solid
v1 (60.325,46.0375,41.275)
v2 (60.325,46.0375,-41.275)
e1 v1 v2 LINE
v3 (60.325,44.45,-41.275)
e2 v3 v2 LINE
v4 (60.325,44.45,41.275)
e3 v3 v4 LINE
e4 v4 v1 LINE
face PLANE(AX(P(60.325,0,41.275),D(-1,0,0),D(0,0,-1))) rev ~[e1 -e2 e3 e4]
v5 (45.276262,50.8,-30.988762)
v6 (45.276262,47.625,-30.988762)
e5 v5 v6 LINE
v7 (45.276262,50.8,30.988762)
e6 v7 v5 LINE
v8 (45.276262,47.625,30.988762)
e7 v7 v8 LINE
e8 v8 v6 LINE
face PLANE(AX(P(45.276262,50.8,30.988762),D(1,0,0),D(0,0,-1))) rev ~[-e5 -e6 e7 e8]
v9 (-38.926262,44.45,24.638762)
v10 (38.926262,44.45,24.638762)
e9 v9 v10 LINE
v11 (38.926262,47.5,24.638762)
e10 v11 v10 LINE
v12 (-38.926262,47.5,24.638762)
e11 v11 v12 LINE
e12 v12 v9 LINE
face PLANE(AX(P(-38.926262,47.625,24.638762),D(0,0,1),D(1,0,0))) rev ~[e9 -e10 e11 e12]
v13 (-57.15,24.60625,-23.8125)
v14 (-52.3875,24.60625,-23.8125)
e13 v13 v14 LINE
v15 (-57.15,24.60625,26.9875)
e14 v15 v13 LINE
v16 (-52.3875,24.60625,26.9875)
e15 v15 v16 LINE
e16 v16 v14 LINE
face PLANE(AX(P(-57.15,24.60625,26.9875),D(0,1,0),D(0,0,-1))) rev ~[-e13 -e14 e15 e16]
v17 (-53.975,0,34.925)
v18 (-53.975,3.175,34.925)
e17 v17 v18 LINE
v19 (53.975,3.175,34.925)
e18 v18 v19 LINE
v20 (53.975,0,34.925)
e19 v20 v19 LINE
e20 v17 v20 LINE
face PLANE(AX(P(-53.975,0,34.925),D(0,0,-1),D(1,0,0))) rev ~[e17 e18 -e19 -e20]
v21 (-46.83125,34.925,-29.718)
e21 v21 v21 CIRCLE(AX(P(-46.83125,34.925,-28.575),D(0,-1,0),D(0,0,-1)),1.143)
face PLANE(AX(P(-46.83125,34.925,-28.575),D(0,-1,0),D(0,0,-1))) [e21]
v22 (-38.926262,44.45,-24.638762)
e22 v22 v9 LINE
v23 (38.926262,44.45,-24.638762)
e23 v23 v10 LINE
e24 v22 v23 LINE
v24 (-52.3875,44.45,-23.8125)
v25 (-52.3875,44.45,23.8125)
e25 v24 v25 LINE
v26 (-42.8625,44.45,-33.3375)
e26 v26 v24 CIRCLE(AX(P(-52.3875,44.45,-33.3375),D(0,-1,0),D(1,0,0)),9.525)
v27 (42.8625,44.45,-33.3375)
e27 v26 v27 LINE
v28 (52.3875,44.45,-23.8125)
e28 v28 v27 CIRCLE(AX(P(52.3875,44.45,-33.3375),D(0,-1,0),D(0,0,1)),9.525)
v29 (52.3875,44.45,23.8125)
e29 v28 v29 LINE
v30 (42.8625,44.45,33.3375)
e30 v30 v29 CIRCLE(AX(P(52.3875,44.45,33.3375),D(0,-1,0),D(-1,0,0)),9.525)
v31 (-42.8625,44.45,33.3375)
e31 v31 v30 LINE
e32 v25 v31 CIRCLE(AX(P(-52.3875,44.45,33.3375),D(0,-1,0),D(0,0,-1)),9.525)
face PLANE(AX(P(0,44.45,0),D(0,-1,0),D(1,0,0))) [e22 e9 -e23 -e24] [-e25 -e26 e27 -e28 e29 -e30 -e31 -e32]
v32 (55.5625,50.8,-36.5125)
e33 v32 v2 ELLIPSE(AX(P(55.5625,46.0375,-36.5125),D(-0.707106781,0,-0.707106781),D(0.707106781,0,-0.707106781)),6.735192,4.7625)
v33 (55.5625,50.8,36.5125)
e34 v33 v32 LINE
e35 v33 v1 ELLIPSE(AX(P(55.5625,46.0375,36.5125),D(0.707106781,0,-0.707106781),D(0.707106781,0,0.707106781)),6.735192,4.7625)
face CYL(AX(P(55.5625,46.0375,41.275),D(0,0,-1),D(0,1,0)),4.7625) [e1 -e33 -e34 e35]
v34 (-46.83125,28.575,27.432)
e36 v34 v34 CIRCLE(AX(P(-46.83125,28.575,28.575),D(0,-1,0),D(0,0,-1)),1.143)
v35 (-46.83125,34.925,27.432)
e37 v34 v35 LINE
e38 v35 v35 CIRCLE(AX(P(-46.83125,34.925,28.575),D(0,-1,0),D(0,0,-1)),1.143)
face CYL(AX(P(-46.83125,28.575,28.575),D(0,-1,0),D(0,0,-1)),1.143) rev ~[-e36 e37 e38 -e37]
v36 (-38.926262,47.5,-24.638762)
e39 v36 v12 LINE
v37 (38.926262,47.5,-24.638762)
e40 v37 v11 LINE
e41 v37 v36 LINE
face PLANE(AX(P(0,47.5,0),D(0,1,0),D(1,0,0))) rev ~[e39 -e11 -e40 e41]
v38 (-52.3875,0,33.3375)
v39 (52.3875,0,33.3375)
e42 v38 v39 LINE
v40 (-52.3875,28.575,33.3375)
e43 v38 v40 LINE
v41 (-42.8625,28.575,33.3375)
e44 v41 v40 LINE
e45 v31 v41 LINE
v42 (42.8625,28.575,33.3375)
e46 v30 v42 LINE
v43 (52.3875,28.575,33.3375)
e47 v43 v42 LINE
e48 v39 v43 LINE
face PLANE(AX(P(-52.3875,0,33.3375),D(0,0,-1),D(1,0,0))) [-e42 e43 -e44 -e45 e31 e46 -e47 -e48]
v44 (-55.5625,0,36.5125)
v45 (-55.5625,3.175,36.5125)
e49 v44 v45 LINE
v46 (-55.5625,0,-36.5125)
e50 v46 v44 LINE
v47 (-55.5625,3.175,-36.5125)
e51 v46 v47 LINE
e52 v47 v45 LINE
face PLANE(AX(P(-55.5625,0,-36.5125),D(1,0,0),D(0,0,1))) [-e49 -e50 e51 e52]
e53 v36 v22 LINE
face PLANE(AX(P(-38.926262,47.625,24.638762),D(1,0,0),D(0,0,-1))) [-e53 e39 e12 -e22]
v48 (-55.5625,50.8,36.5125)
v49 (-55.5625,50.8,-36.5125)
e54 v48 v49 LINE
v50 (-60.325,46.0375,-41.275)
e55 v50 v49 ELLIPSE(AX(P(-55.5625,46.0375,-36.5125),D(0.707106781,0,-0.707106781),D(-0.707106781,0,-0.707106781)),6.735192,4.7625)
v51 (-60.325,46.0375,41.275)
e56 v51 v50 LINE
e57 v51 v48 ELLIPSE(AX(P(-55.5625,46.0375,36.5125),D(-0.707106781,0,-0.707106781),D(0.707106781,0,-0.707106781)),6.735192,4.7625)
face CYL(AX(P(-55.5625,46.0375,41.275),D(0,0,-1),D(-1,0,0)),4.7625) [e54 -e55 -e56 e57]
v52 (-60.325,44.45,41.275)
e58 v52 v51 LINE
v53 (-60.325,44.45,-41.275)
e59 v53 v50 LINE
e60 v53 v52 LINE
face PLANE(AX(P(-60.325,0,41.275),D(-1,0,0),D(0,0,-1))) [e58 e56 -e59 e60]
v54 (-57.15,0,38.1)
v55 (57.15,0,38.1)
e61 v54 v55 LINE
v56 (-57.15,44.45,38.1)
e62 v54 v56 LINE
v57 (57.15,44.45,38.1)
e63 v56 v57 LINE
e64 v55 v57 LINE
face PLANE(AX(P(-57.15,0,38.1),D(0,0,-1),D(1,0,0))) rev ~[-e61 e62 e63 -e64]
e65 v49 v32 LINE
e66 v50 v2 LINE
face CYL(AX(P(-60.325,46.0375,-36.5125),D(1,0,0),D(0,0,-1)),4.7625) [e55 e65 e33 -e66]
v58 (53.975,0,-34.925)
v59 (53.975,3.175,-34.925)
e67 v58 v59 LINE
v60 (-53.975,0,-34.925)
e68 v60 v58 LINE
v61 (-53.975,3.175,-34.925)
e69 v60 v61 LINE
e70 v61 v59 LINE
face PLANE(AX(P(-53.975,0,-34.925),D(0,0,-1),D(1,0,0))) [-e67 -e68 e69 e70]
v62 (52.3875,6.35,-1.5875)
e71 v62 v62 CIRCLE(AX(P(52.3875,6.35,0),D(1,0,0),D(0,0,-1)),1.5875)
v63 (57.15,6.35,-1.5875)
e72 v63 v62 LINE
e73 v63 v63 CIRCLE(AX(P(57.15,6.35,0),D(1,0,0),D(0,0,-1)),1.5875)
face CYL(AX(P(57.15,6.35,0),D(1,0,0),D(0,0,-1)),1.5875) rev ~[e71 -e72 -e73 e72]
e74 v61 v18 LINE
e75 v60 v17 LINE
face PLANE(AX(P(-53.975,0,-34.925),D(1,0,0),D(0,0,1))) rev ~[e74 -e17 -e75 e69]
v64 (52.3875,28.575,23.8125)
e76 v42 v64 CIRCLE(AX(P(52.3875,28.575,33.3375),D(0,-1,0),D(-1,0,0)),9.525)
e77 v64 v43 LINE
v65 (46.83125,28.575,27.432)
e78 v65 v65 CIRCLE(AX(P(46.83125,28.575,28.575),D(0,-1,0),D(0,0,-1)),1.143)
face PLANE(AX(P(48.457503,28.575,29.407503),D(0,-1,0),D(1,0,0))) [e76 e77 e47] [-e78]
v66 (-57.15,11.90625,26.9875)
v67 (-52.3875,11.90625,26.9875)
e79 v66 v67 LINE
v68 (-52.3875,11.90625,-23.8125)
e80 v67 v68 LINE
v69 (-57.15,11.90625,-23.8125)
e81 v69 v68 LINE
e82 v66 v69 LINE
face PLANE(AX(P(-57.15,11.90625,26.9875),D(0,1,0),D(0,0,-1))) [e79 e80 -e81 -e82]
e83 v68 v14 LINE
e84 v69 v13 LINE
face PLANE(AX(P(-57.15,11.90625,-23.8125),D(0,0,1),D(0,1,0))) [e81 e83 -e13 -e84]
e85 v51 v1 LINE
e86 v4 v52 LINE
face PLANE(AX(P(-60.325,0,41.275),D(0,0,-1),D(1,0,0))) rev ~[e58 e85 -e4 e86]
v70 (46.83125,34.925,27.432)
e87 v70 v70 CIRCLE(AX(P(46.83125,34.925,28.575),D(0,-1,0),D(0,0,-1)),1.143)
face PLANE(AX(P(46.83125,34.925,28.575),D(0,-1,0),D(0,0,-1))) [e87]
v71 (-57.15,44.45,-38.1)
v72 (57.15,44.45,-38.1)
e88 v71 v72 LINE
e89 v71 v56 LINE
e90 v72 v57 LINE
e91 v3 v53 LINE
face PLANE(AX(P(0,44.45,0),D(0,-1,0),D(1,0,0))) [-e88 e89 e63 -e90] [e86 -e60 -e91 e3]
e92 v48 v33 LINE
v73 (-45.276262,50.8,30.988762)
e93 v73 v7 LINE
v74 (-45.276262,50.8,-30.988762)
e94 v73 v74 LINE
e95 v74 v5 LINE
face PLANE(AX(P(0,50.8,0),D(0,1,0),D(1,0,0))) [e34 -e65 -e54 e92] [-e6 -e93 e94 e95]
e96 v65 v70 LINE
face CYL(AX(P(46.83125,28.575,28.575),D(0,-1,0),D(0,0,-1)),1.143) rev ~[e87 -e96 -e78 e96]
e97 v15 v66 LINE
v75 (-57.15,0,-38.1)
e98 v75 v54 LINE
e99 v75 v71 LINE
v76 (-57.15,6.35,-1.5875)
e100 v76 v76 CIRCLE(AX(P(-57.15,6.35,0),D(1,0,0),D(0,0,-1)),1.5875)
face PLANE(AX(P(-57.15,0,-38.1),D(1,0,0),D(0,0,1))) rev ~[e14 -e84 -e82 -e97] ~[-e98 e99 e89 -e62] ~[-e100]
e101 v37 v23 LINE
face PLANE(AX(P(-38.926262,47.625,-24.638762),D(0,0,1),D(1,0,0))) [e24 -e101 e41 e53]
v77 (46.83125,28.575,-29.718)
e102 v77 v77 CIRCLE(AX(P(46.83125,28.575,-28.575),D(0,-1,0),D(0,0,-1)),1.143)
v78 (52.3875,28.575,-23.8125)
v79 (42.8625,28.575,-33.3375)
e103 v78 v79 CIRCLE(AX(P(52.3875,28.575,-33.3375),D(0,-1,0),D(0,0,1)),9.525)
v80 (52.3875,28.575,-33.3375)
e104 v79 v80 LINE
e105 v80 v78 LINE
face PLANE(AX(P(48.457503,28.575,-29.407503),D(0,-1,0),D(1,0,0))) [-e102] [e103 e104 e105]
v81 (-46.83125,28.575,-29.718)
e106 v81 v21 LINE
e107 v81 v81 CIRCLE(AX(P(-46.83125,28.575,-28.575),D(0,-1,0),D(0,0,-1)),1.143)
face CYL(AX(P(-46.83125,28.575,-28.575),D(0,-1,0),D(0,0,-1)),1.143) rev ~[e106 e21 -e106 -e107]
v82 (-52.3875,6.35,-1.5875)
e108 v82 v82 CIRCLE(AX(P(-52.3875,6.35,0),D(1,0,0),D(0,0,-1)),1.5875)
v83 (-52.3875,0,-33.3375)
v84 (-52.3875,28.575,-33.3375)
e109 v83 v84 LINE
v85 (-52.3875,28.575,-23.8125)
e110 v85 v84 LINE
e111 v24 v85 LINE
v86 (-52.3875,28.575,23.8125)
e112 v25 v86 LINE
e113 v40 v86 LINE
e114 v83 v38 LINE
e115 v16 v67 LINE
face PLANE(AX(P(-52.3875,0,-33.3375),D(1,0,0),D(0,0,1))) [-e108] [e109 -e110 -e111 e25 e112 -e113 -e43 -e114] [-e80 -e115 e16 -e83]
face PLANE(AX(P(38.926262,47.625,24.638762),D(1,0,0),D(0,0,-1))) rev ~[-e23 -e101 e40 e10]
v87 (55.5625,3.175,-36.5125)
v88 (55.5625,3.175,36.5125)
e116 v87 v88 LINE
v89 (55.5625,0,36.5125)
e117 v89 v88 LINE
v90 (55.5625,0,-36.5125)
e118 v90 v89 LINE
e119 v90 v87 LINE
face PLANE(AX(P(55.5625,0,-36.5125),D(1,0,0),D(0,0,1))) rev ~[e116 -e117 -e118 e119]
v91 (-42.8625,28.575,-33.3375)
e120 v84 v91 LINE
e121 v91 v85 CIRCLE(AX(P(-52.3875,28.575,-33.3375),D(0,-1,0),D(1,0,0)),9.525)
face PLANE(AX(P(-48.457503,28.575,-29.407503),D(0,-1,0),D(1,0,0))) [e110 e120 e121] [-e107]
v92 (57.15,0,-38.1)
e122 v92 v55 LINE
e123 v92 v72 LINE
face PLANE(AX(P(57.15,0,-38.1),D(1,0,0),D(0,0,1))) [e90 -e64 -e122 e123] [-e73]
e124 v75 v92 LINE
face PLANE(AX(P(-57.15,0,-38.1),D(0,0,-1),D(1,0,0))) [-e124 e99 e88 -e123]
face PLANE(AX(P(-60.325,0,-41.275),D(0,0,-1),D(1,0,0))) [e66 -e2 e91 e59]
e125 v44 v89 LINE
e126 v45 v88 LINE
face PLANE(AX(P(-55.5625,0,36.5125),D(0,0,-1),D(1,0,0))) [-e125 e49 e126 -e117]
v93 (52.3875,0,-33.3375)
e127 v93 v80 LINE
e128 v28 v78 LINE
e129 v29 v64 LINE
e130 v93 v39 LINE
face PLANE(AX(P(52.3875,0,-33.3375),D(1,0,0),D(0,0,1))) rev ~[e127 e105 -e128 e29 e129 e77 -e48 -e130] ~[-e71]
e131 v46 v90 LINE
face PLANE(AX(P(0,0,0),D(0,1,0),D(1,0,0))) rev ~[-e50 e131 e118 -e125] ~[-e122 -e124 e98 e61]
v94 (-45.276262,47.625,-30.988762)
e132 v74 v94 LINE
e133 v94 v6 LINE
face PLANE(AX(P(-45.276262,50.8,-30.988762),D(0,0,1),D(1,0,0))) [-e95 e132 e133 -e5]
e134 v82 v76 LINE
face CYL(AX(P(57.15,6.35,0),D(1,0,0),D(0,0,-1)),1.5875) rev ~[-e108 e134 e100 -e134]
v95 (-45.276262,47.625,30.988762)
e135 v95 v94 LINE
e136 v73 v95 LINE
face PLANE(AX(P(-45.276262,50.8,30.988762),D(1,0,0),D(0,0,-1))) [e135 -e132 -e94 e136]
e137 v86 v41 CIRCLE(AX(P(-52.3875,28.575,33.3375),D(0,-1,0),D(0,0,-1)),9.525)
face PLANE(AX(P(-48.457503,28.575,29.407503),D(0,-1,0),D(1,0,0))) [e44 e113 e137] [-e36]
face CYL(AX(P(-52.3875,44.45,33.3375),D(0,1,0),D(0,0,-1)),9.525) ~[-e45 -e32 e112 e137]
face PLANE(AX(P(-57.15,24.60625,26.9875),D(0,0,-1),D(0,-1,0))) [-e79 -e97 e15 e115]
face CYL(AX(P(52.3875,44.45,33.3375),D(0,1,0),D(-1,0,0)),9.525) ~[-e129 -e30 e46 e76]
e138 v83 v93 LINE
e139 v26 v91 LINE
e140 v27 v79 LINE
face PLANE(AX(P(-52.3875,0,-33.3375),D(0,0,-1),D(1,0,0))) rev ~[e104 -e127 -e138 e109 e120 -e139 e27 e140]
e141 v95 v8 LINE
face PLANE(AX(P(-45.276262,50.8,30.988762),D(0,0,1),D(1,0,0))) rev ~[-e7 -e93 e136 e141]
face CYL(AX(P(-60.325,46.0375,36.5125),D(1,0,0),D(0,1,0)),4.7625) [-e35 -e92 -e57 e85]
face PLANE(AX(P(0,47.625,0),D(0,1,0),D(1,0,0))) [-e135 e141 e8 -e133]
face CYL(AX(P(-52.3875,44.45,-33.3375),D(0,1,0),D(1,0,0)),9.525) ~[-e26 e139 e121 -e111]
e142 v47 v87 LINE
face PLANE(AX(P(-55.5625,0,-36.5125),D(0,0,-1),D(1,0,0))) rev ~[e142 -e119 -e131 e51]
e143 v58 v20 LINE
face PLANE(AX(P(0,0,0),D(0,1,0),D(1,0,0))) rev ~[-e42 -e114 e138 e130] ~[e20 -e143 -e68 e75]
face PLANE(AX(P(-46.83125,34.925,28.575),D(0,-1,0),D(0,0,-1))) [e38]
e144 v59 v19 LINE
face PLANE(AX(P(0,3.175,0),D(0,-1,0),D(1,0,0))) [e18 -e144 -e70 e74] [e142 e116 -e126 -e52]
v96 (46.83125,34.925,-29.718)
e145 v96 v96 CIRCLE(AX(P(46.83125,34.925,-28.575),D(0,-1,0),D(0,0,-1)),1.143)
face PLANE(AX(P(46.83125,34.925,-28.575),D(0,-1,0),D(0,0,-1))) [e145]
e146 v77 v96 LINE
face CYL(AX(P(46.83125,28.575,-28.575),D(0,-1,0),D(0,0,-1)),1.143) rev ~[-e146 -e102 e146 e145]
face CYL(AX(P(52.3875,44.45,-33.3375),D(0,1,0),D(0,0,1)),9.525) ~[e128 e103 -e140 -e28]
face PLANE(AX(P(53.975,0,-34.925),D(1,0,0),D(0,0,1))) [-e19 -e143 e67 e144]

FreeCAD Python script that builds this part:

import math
import FreeCAD as App
import Part
import Sketcher
Q = App.Units.Quantity


def edges_at(feature, points):
    """Names of the edges that pass closest to the given points."""
    edges = feature.Shape.Edges
    near = lambda p: min(range(len(edges)), key=lambda i: edges[i].distToShape(Part.Vertex(*p))[0])
    return sorted({f"Edge{near(p) + 1}" for p in points})

doc = App.newDocument("Part")
params = doc.addObject("Spreadsheet::Sheet", "Params")
for row, (alias, value) in enumerate([
    ("sketch1_width", "4.75 in"),
    ("sketch1_height", "3.25 in"),
    ("pad1_length", "2 in"),
    ("pocket1_length", "0.125 in"),
    ("sketch4_width", "5 in"),
    ("sketch4_height", "3 in"),
    ("sketch4_width2", "4.5 in"),
    ("sketch4_height2", "3.5 in"),
    ("sketch4_width3", "4.125 in"),
    ("pocket3_length", "1.75 in"),
    ("fillet_radius", "0.1875 in"),
    ("sketch5_height", "2 in"),
    ("sketch5_width", "0.5 in"),
    ("sketch6_diameter", "0.125 in"),
    ("sketch7_radius", "0.375 in"),
    ("pad2_length", "0.625 in"),
    ("sketch8_diameter", "0.09 in"),
    ("pocket6_length", "0.25 in"),
    ("sketch9_width", "4.25 in"),
    ("sketch9_height", "2.75 in"),
    ("sketch9_width2", "4.375 in"),
    ("sketch9_height2", "2.875 in"),
    ("pocket7_length", "0.125 in"),
    ("pad3_length", "0.125 mm"),
], start=1):
    params.set(f"A{row}", alias)
    params.set(f"B{row}", "=" + value)
    params.setAlias(f"B{row}", alias)

body = doc.addObject("PartDesign::Body", "Body")

# Sketch on XZ plane
sketch1 = body.newObject("Sketcher::SketchObject", "Sketch")
sketch1.AttachmentSupport = (doc.getObject("XZ_Plane"), [""])
sketch1.MapMode = "FlatFace"
sketch1.addGeometry([
    Part.LineSegment(App.Vector(-60.325, -41.275, 0), App.Vector(-60.325, 41.275, 0)),
    Part.LineSegment(App.Vector(-60.325, 41.275, 0), App.Vector(60.325, 41.275, 0)),
    Part.LineSegment(App.Vector(60.325, 41.275, 0), App.Vector(60.325, -41.275, 0)),
    Part.LineSegment(App.Vector(60.325, -41.275, 0), App.Vector(-60.325, -41.275, 0)),
], False)
sketch1.addConstraint([
    Sketcher.Constraint("Coincident", 0, 2, 1, 1),
    Sketcher.Constraint("Coincident", 1, 2, 2, 1),
    Sketcher.Constraint("Coincident", 2, 2, 3, 1),
    Sketcher.Constraint("Coincident", 3, 2, 0, 1),
    Sketcher.Constraint("Vertical", 0),
    Sketcher.Constraint("Horizontal", 1),
    Sketcher.Constraint("Vertical", 2),
    Sketcher.Constraint("Horizontal", 3),
    Sketcher.Constraint("Symmetric", 0, 2, 2, 2, -1, 1),
    Sketcher.Constraint("DistanceX", 1, 1, 1, 2, Q("4.75 in")),
    Sketcher.Constraint("DistanceY", 0, 1, 0, 2, Q("3.25 in")),
])
sketch1.setExpression("Constraints[9]", "Params.sketch1_width")
sketch1.setExpression("Constraints[10]", "Params.sketch1_height")
pad1 = body.newObject("PartDesign::Pad", "Pad")
pad1.Profile = sketch1
pad1.setExpression("Length", "Params.pad1_length")
pad1.Reversed = True

# Sketch on XZ plane
sketch2 = body.newObject("Sketcher::SketchObject", "Sketch001")
sketch2.AttachmentSupport = (doc.getObject("XZ_Plane"), [""])
sketch2.MapMode = "FlatFace"
sketch2.AttachmentOffset = App.Placement(App.Vector(0, 0, -2 * 25.4), App.Rotation())
sketch2.addGeometry([
    Part.LineSegment(App.Vector(-45.276262, -30.988762, 0), App.Vector(-45.276262, 30.988762, 0)),
    Part.LineSegment(App.Vector(-45.276262, 30.988762, 0), App.Vector(45.276262, 30.988762, 0)),
    Part.LineSegment(App.Vector(45.276262, 30.988762, 0), App.Vector(45.276262, -30.988762, 0)),
    Part.LineSegment(App.Vector(45.276262, -30.988762, 0), App.Vector(-45.276262, -30.988762, 0)),
], False)
sketch2.addConstraint([
    Sketcher.Constraint("Coincident", 0, 2, 1, 1),
    Sketcher.Constraint("Coincident", 1, 2, 2, 1),
    Sketcher.Constraint("Coincident", 2, 2, 3, 1),
    Sketcher.Constraint("Coincident", 3, 2, 0, 1),
    Sketcher.Constraint("Vertical", 0),
    Sketcher.Constraint("Horizontal", 1),
    Sketcher.Constraint("Vertical", 2),
    Sketcher.Constraint("Horizontal", 3),
    Sketcher.Constraint("Symmetric", 0, 2, 2, 2, -1, 1),
    Sketcher.Constraint("DistanceX", 1, 1, 1, 2, 90.552524),
    Sketcher.Constraint("DistanceY", 0, 1, 0, 2, 61.977524),
])
pocket1 = body.newObject("PartDesign::Pocket", "Pocket")
pocket1.Profile = sketch2
pocket1.setExpression("Length", "Params.pocket1_length")
pocket1.Reversed = True

# Sketch on XZ plane
sketch3 = body.newObject("Sketcher::SketchObject", "Sketch002")
sketch3.AttachmentSupport = (doc.getObject("XZ_Plane"), [""])
sketch3.MapMode = "FlatFace"
sketch3.AttachmentOffset = App.Placement(App.Vector(0, 0, -1.875 * 25.4), App.Rotation())
sketch3.addGeometry([
    Part.LineSegment(App.Vector(-38.926262, -24.638762, 0), App.Vector(-38.926262, 24.638762, 0)),
    Part.LineSegment(App.Vector(-38.926262, 24.638762, 0), App.Vector(38.926262, 24.638762, 0)),
    Part.LineSegment(App.Vector(38.926262, 24.638762, 0), App.Vector(38.926262, -24.638762, 0)),
    Part.LineSegment(App.Vector(38.926262, -24.638762, 0), App.Vector(-38.926262, -24.638762, 0)),
], False)
sketch3.addConstraint([
    Sketcher.Constraint("Coincident", 0, 2, 1, 1),
    Sketcher.Constraint("Coincident", 1, 2, 2, 1),
    Sketcher.Constraint("Coincident", 2, 2, 3, 1),
    Sketcher.Constraint("Coincident", 3, 2, 0, 1),
    Sketcher.Constraint("Vertical", 0),
    Sketcher.Constraint("Horizontal", 1),
    Sketcher.Constraint("Vertical", 2),
    Sketcher.Constraint("Horizontal", 3),
    Sketcher.Constraint("Symmetric", 0, 2, 2, 2, -1, 1),
    Sketcher.Constraint("DistanceX", 1, 1, 1, 2, 77.852524),
    Sketcher.Constraint("DistanceY", 0, 1, 0, 2, 49.277524),
])
pocket2 = body.newObject("PartDesign::Pocket", "Pocket001")
pocket2.Profile = sketch3
pocket2.Type = "ThroughAll"
pocket2.Reversed = True

# Sketch on XZ plane
sketch4 = body.newObject("Sketcher::SketchObject", "Sketch003")
sketch4.AttachmentSupport = (doc.getObject("XZ_Plane"), [""])
sketch4.MapMode = "FlatFace"
sketch4.addGeometry([
    Part.LineSegment(App.Vector(-63.5, 44.45, 0), App.Vector(-63.5, -44.45, 0)),  # 0
    Part.LineSegment(App.Vector(-63.5, -44.45, 0), App.Vector(63.5, -44.45, 0)),  # 1
    Part.LineSegment(App.Vector(63.5, -44.45, 0), App.Vector(63.5, 44.45, 0)),  # 2
    Part.LineSegment(App.Vector(63.5, 44.45, 0), App.Vector(-63.5, 44.45, 0)),  # 3
    Part.LineSegment(App.Vector(57.15, -38.1, 0), App.Vector(-57.15, -38.1, 0)),  # 4
    Part.LineSegment(App.Vector(-57.15, -38.1, 0), App.Vector(-57.15, 38.1, 0)),  # 5
    Part.LineSegment(App.Vector(-57.15, 38.1, 0), App.Vector(57.15, 38.1, 0)),  # 6
    Part.LineSegment(App.Vector(57.15, 38.1, 0), App.Vector(57.15, -38.1, 0)),  # 7
    Part.LineSegment(App.Vector(-52.3875, 33.3375, 0), App.Vector(-52.3875, -33.3375, 0)),  # 8
    Part.LineSegment(App.Vector(-52.3875, -33.3375, 0), App.Vector(52.3875, -33.3375, 0)),  # 9
    Part.LineSegment(App.Vector(52.3875, -33.3375, 0), App.Vector(52.3875, 33.3375, 0)),  # 10
    Part.LineSegment(App.Vector(52.3875, 33.3375, 0), App.Vector(-52.3875, 33.3375, 0)),  # 11
    Part.LineSegment(App.Vector(38.926262, -24.638762, 0), App.Vector(-38.926262, -24.638762, 0)),  # 12
    Part.LineSegment(App.Vector(-38.926262, -24.638762, 0), App.Vector(-38.926262, 24.638762, 0)),  # 13
    Part.LineSegment(App.Vector(-38.926262, 24.638762, 0), App.Vector(38.926262, 24.638762, 0)),  # 14
    Part.LineSegment(App.Vector(38.926262, 24.638762, 0), App.Vector(38.926262, -24.638762, 0)),  # 15
], False)
sketch4.addConstraint([
    Sketcher.Constraint("Coincident", 0, 2, 1, 1),
    Sketcher.Constraint("Coincident", 1, 2, 2, 1),
    Sketcher.Constraint("Coincident", 2, 2, 3, 1),
    Sketcher.Constraint("Coincident", 3, 2, 0, 1),
    Sketcher.Constraint("Coincident", 4, 2, 5, 1),
    Sketcher.Constraint("Coincident", 5, 2, 6, 1),
    Sketcher.Constraint("Coincident", 6, 2, 7, 1),
    Sketcher.Constraint("Coincident", 7, 2, 4, 1),
    Sketcher.Constraint("Coincident", 8, 2, 9, 1),
    Sketcher.Constraint("Coincident", 9, 2, 10, 1),
    Sketcher.Constraint("Coincident", 10, 2, 11, 1),
    Sketcher.Constraint("Coincident", 11, 2, 8, 1),
    Sketcher.Constraint("Coincident", 12, 2, 13, 1),
    Sketcher.Constraint("Coincident", 13, 2, 14, 1),
    Sketcher.Constraint("Coincident", 14, 2, 15, 1),
    Sketcher.Constraint("Coincident", 15, 2, 12, 1),
    Sketcher.Constraint("Vertical", 0),
    Sketcher.Constraint("Horizontal", 1),
    Sketcher.Constraint("Vertical", 2),
    Sketcher.Constraint("Horizontal", 3),
    Sketcher.Constraint("Horizontal", 4),
    Sketcher.Constraint("Vertical", 5),
    Sketcher.Constraint("Horizontal", 6),
    Sketcher.Constraint("Vertical", 7),
    Sketcher.Constraint("Vertical", 8),
    Sketcher.Constraint("Horizontal", 9),
    Sketcher.Constraint("Vertical", 10),
    Sketcher.Constraint("Horizontal", 11),
    Sketcher.Constraint("Horizontal", 12),
    Sketcher.Constraint("Vertical", 13),
    Sketcher.Constraint("Horizontal", 14),
    Sketcher.Constraint("Vertical", 15),
    Sketcher.Constraint("Symmetric", 0, 2, 2, 2, -1, 1),
    Sketcher.Constraint("Symmetric", 4, 2, 6, 2, -1, 1),
    Sketcher.Constraint("Symmetric", 8, 2, 10, 2, -1, 1),
    Sketcher.Constraint("Symmetric", 12, 2, 14, 2, -1, 1),
    Sketcher.Constraint("DistanceX", 1, 1, 1, 2, Q("5 in")),
    Sketcher.Constraint("DistanceY", 5, 1, 5, 2, Q("3 in")),
    Sketcher.Constraint("DistanceX", 4, 2, 4, 1, Q("4.5 in")),
    Sketcher.Constraint("DistanceY", 0, 2, 0, 1, Q("3.5 in")),
    Sketcher.Constraint("DistanceX", 9, 1, 9, 2, Q("4.125 in")),
    Sketcher.Constraint("DistanceY", 8, 2, 8, 1, Q("2.625 in")),
    Sketcher.Constraint("DistanceX", 12, 2, 12, 1, 77.852524),
    Sketcher.Constraint("DistanceY", 13, 1, 13, 2, 49.277524),
])
sketch4.setExpression("Constraints[36]", "Params.sketch4_width")
sketch4.setExpression("Constraints[37]", "Params.sketch4_height")
sketch4.setExpression("Constraints[38]", "Params.sketch4_width2")
sketch4.setExpression("Constraints[39]", "Params.sketch4_height2")
sketch4.setExpression("Constraints[40]", "Params.sketch4_width3")
pocket3 = body.newObject("PartDesign::Pocket", "Pocket002")
pocket3.Profile = sketch4
pocket3.setExpression("Length", "Params.pocket3_length")
doc.recompute()

fillet = body.newObject("PartDesign::Fillet", "Fillet")
fillet.Base = (pocket3, edges_at(pocket3, [
    (-60.325, 50.8, 0),
    (0, 50.8, 41.275),
    (60.325, 50.8, 0),
    (0, 50.8, -41.275),
]))
fillet.setExpression("Radius", "Params.fillet_radius")

# Sketch on YZ plane
sketch5 = body.newObject("Sketcher::SketchObject", "Sketch004")
sketch5.AttachmentSupport = (doc.getObject("YZ_Plane"), [""])
sketch5.MapMode = "FlatFace"
sketch5.AttachmentOffset = App.Placement(App.Vector(0, 0, -2.25 * 25.4), App.Rotation())
sketch5.addGeometry([
    Part.LineSegment(App.Vector(24.60625, 26.9875, 0), App.Vector(24.60625, -23.8125, 0)),
    Part.LineSegment(App.Vector(24.60625, -23.8125, 0), App.Vector(11.90625, -23.8125, 0)),
    Part.LineSegment(App.Vector(11.90625, -23.8125, 0), App.Vector(11.90625, 26.9875, 0)),
    Part.LineSegment(App.Vector(11.90625, 26.9875, 0), App.Vector(24.60625, 26.9875, 0)),
], False)
sketch5.addConstraint([
    Sketcher.Constraint("Coincident", 0, 2, 1, 1),
    Sketcher.Constraint("Coincident", 1, 2, 2, 1),
    Sketcher.Constraint("Coincident", 2, 2, 3, 1),
    Sketcher.Constraint("Coincident", 3, 2, 0, 1),
    Sketcher.Constraint("Vertical", 0),
    Sketcher.Constraint("Horizontal", 1),
    Sketcher.Constraint("Vertical", 2),
    Sketcher.Constraint("Horizontal", 3),
    Sketcher.Constraint("DistanceY", 0, 2, 0, 1, Q("2 in")),
    Sketcher.Constraint("DistanceX", 1, 2, 1, 1, Q("0.5 in")),
    Sketcher.Constraint("DistanceX", -1, 1, 0, 2, Q("0.96875 in")),
    Sketcher.Constraint("DistanceY", 0, 2, -1, 1, Q("0.9375 in")),
])
sketch5.setExpression("Constraints[8]", "Params.sketch5_height")
sketch5.setExpression("Constraints[9]", "Params.sketch5_width")
pocket4 = body.newObject("PartDesign::Pocket", "Pocket003")
pocket4.Profile = sketch5
pocket4.Type = "UpToFirst"
pocket4.Reversed = True

# Sketch on YZ plane
sketch6 = body.newObject("Sketcher::SketchObject", "Sketch005")
sketch6.AttachmentSupport = (doc.getObject("YZ_Plane"), [""])
sketch6.MapMode = "FlatFace"
sketch6.AttachmentOffset = App.Placement(App.Vector(0, 0, 2.25 * 25.4), App.Rotation())
sketch6.addGeometry(Part.Circle(App.Vector(6.35, 0, 0), App.Vector(0, 0, 1), 1.5875), False)
sketch6.addConstraint([
    Sketcher.Constraint("PointOnObject", 0, 3, -1),
    Sketcher.Constraint("Diameter", 0, Q("0.125 in")),
    Sketcher.Constraint("DistanceX", -1, 1, 0, 3, Q("0.25 in")),
])
sketch6.setExpression("Constraints[1]", "Params.sketch6_diameter")
pocket5 = body.newObject("PartDesign::Pocket", "Pocket004")
pocket5.Profile = sketch6
pocket5.Type = "ThroughAll"

# Sketch on XZ plane
sketch7 = body.newObject("Sketcher::SketchObject", "Sketch006")
sketch7.AttachmentSupport = (doc.getObject("XZ_Plane"), [""])
sketch7.MapMode = "FlatFace"
sketch7.AttachmentOffset = App.Placement(App.Vector(0, 0, -1.75 * 25.4), App.Rotation())
sketch7.addGeometry([
    Part.LineSegment(App.Vector(-42.8625, 33.3375, 0), App.Vector(-52.3875, 33.3375, 0)),  # 0
    Part.LineSegment(App.Vector(-52.3875, 33.3375, 0), App.Vector(-52.3875, 23.8125, 0)),  # 1
    Part.ArcOfCircle(Part.Circle(App.Vector(-52.3875, 33.3375, 0), App.Vector(0, 0, 1), 9.525), math.radians(-90), math.radians(0)),  # 2
    Part.ArcOfCircle(Part.Circle(App.Vector(-52.3875, -33.3375, 0), App.Vector(0, 0, 1), 9.525), math.radians(0), math.radians(90)),  # 3
    Part.LineSegment(App.Vector(-52.3875, -23.8125, 0), App.Vector(-52.3875, -33.3375, 0)),  # 4
    Part.LineSegment(App.Vector(-52.3875, -33.3375, 0), App.Vector(-42.8625, -33.3375, 0)),  # 5
    Part.LineSegment(App.Vector(52.3875, 33.3375, 0), App.Vector(42.8625, 33.3375, 0)),  # 6
    Part.ArcOfCircle(Part.Circle(App.Vector(52.3875, 33.3375, 0), App.Vector(0, 0, 1), 9.525), math.radians(180), math.radians(270)),  # 7
    Part.LineSegment(App.Vector(52.3875, 23.8125, 0), App.Vector(52.3875, 33.3375, 0)),  # 8
    Part.ArcOfCircle(Part.Circle(App.Vector(52.3875, -33.3375, 0), App.Vector(0, 0, 1), 9.525), math.radians(90), math.radians(180)),  # 9
    Part.LineSegment(App.Vector(42.8625, -33.3375, 0), App.Vector(52.3875, -33.3375, 0)),  # 10
    Part.LineSegment(App.Vector(52.3875, -33.3375, 0), App.Vector(52.3875, -23.8125, 0)),  # 11
], False)
sketch7.addConstraint([
    Sketcher.Constraint("Coincident", 0, 2, 1, 1),
    Sketcher.Constraint("Coincident", 1, 2, 2, 1),
    Sketcher.Constraint("Coincident", 2, 2, 0, 1),
    Sketcher.Constraint("Coincident", 3, 2, 4, 1),
    Sketcher.Constraint("Coincident", 4, 2, 5, 1),
    Sketcher.Constraint("Coincident", 5, 2, 3, 1),
    Sketcher.Constraint("Coincident", 6, 2, 7, 1),
    Sketcher.Constraint("Coincident", 7, 2, 8, 1),
    Sketcher.Constraint("Coincident", 8, 2, 6, 1),
    Sketcher.Constraint("Coincident", 9, 2, 10, 1),
    Sketcher.Constraint("Coincident", 10, 2, 11, 1),
    Sketcher.Constraint("Coincident", 11, 2, 9, 1),
    Sketcher.Constraint("Horizontal", 0),
    Sketcher.Constraint("Vertical", 1),
    Sketcher.Constraint("Vertical", 4),
    Sketcher.Constraint("Horizontal", 5),
    Sketcher.Constraint("Horizontal", 6),
    Sketcher.Constraint("Vertical", 8),
    Sketcher.Constraint("Horizontal", 10),
    Sketcher.Constraint("Vertical", 11),
    Sketcher.Constraint("Coincident", 0, 2, 2, 3),
    Sketcher.Constraint("Coincident", 4, 2, 3, 3),
    Sketcher.Constraint("Coincident", 8, 2, 7, 3),
    Sketcher.Constraint("Coincident", 10, 2, 9, 3),
    Sketcher.Constraint("Equal", 2, 3),
    Sketcher.Constraint("Equal", 3, 7),
    Sketcher.Constraint("Equal", 7, 9),
    Sketcher.Constraint("Symmetric", 3, 3, 7, 3, -1, 1),
    Sketcher.Constraint("Symmetric", 2, 3, 9, 3, -1, 1),
    Sketcher.Constraint("Symmetric", 2, 3, 7, 3, -2),
    Sketcher.Constraint("Radius", 2, Q("0.375 in")),
    Sketcher.Constraint("DistanceY", 3, 3, 1, 2, Q("2.25 in")),
    Sketcher.Constraint("DistanceX", 2, 2, 7, 3, Q("3.75 in")),
])
sketch7.setExpression("Constraints[30]", "Params.sketch7_radius")
pad2 = body.newObject("PartDesign::Pad", "Pad001")
pad2.Profile = sketch7
pad2.setExpression("Length", "Params.pad2_length")

# Sketch on XZ plane
sketch8 = body.newObject("Sketcher::SketchObject", "Sketch007")
sketch8.AttachmentSupport = (doc.getObject("XZ_Plane"), [""])
sketch8.MapMode = "FlatFace"
sketch8.AttachmentOffset = App.Placement(App.Vector(0, 0, -1.125 * 25.4), App.Rotation())
sketch8.addGeometry([
    Part.Circle(App.Vector(46.83125, -28.575, 0), App.Vector(0, 0, 1), 1.143),
    Part.Circle(App.Vector(-46.83125, -28.575, 0), App.Vector(0, 0, 1), 1.143),
    Part.Circle(App.Vector(-46.83125, 28.575, 0), App.Vector(0, 0, 1), 1.143),
    Part.Circle(App.Vector(46.83125, 28.575, 0), App.Vector(0, 0, 1), 1.143),
], False)
sketch8.addConstraint([
    Sketcher.Constraint("Equal", 0, 1),
    Sketcher.Constraint("Equal", 1, 2),
    Sketcher.Constraint("Equal", 2, 3),
    Sketcher.Constraint("Symmetric", 0, 3, 2, 3, -1, 1),
    Sketcher.Constraint("Symmetric", 1, 3, 3, 3, -1, 1),
    Sketcher.Constraint("Symmetric", 0, 3, 1, 3, -2),
    Sketcher.Constraint("Diameter", 0, Q("0.09 in")),
    Sketcher.Constraint("DistanceY", 1, 3, 2, 3, Q("2.25 in")),
    Sketcher.Constraint("DistanceX", -1, 1, 0, 3, Q("1.84375 in")),
])
sketch8.setExpression("Constraints[6]", "Params.sketch8_diameter")
pocket6 = body.newObject("PartDesign::Pocket", "Pocket005")
pocket6.Profile = sketch8
pocket6.setExpression("Length", "Params.pocket6_length")

# Sketch on XZ plane
sketch9 = body.newObject("Sketcher::SketchObject", "Sketch008")
sketch9.AttachmentSupport = (doc.getObject("XZ_Plane"), [""])
sketch9.MapMode = "FlatFace"
sketch9.addGeometry([
    Part.LineSegment(App.Vector(-55.5625, 36.5125, 0), App.Vector(-55.5625, -36.5125, 0)),  # 0
    Part.LineSegment(App.Vector(-55.5625, -36.5125, 0), App.Vector(55.5625, -36.5125, 0)),  # 1
    Part.LineSegment(App.Vector(55.5625, -36.5125, 0), App.Vector(55.5625, 36.5125, 0)),  # 2
    Part.LineSegment(App.Vector(55.5625, 36.5125, 0), App.Vector(-55.5625, 36.5125, 0)),  # 3
    Part.LineSegment(App.Vector(53.975, -34.925, 0), App.Vector(-53.975, -34.925, 0)),  # 4
    Part.LineSegment(App.Vector(-53.975, -34.925, 0), App.Vector(-53.975, 34.925, 0)),  # 5
    Part.LineSegment(App.Vector(-53.975, 34.925, 0), App.Vector(53.975, 34.925, 0)),  # 6
    Part.LineSegment(App.Vector(53.975, 34.925, 0), App.Vector(53.975, -34.925, 0)),  # 7
], False)
sketch9.addConstraint([
    Sketcher.Constraint("Coincident", 0, 2, 1, 1),
    Sketcher.Constraint("Coincident", 1, 2, 2, 1),
    Sketcher.Constraint("Coincident", 2, 2, 3, 1),
    Sketcher.Constraint("Coincident", 3, 2, 0, 1),
    Sketcher.Constraint("Coincident", 4, 2, 5, 1),
    Sketcher.Constraint("Coincident", 5, 2, 6, 1),
    Sketcher.Constraint("Coincident", 6, 2, 7, 1),
    Sketcher.Constraint("Coincident", 7, 2, 4, 1),
    Sketcher.Constraint("Vertical", 0),
    Sketcher.Constraint("Horizontal", 1),
    Sketcher.Constraint("Vertical", 2),
    Sketcher.Constraint("Horizontal", 3),
    Sketcher.Constraint("Horizontal", 4),
    Sketcher.Constraint("Vertical", 5),
    Sketcher.Constraint("Horizontal", 6),
    Sketcher.Constraint("Vertical", 7),
    Sketcher.Constraint("Symmetric", 0, 2, 2, 2, -1, 1),
    Sketcher.Constraint("Symmetric", 4, 2, 6, 2, -1, 1),
    Sketcher.Constraint("DistanceX", 4, 2, 4, 1, Q("4.25 in")),
    Sketcher.Constraint("DistanceY", 5, 1, 5, 2, Q("2.75 in")),
    Sketcher.Constraint("DistanceX", 1, 1, 1, 2, Q("4.375 in")),
    Sketcher.Constraint("DistanceY", 0, 2, 0, 1, Q("2.875 in")),
])
sketch9.setExpression("Constraints[18]", "Params.sketch9_width")
sketch9.setExpression("Constraints[19]", "Params.sketch9_height")
sketch9.setExpression("Constraints[20]", "Params.sketch9_width2")
sketch9.setExpression("Constraints[21]", "Params.sketch9_height2")
pocket7 = body.newObject("PartDesign::Pocket", "Pocket006")
pocket7.Profile = sketch9
pocket7.setExpression("Length", "Params.pocket7_length")

# Sketch on XZ plane
sketch10 = body.newObject("Sketcher::SketchObject", "Sketch009")
sketch10.AttachmentSupport = (doc.getObject("XZ_Plane"), [""])
sketch10.MapMode = "FlatFace"
sketch10.AttachmentOffset = App.Placement(App.Vector(0, 0, -1.875 * 25.4), App.Rotation())
sketch10.addGeometry([
    Part.LineSegment(App.Vector(-45.276262, -30.988762, 0), App.Vector(-45.276262, 30.988762, 0)),
    Part.LineSegment(App.Vector(-45.276262, 30.988762, 0), App.Vector(45.276262, 30.988762, 0)),
    Part.LineSegment(App.Vector(45.276262, 30.988762, 0), App.Vector(45.276262, -30.988762, 0)),
    Part.LineSegment(App.Vector(45.276262, -30.988762, 0), App.Vector(-45.276262, -30.988762, 0)),
], False)
sketch10.addConstraint([
    Sketcher.Constraint("Coincident", 0, 2, 1, 1),
    Sketcher.Constraint("Coincident", 1, 2, 2, 1),
    Sketcher.Constraint("Coincident", 2, 2, 3, 1),
    Sketcher.Constraint("Coincident", 3, 2, 0, 1),
    Sketcher.Constraint("Vertical", 0),
    Sketcher.Constraint("Horizontal", 1),
    Sketcher.Constraint("Vertical", 2),
    Sketcher.Constraint("Horizontal", 3),
    Sketcher.Constraint("Symmetric", 0, 2, 2, 2, -1, 1),
    Sketcher.Constraint("DistanceX", 1, 1, 1, 2, 90.552524),
    Sketcher.Constraint("DistanceY", 0, 1, 0, 2, 61.977524),
])
pad3 = body.newObject("PartDesign::Pad", "Pad002")
pad3.Profile = sketch10
pad3.setExpression("Length", "Params.pad3_length")

doc.recompute()
